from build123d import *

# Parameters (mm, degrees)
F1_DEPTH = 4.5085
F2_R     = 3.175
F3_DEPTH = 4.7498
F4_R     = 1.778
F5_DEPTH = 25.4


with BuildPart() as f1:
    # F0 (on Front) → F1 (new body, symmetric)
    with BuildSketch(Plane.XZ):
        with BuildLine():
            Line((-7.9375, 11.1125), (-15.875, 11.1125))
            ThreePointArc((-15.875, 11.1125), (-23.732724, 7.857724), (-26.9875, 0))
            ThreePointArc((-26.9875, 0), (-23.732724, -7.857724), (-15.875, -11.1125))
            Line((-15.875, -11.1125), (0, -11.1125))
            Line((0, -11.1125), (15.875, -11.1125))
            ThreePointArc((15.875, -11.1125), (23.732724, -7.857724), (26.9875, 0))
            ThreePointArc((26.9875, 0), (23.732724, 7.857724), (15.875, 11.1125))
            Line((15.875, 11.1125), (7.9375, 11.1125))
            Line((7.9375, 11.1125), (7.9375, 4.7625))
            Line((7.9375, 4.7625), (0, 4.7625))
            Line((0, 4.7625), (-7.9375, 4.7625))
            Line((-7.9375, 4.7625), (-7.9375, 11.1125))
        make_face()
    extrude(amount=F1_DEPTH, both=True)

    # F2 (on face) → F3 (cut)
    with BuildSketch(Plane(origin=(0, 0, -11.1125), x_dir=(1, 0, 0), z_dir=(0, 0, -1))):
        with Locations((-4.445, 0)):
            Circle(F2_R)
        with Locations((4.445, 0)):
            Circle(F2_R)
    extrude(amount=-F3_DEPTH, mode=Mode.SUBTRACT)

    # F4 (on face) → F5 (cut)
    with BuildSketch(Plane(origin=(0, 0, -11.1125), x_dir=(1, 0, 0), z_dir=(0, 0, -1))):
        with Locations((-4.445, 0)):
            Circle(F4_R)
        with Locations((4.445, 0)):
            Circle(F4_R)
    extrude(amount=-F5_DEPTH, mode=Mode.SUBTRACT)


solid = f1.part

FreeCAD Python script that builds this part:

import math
import FreeCAD as App
import Part
import Sketcher
from FreeCAD import Vector
Q = App.Units.Quantity

doc = App.newDocument("Part")
body = doc.addObject("PartDesign::Body", "Body")

sketch1 = body.newObject("Sketcher::SketchObject", "Sketch")
sketch1.AttachmentSupport = (doc.getObject("XZ_Plane"), [""])
sketch1.MapMode = "FlatFace"
sketch1.addGeometry(Part.LineSegment(Vector(-8, 11, 0), Vector(-16, 11, 0)), False)
sketch1.addGeometry(Part.ArcOfCircle(Part.Circle(Vector(-16, 0, 0), Vector(0, 0, 1), 11), math.radians(90), math.radians(180)), False)
sketch1.addGeometry(Part.ArcOfCircle(Part.Circle(Vector(-16, 0, 0), Vector(0, 0, 1), 11), math.radians(-180), math.radians(-90)), False)
sketch1.addGeometry(Part.LineSegment(Vector(-16, -11, 0), Vector(16, -11, 0)), False)
sketch1.addGeometry(Part.ArcOfCircle(Part.Circle(Vector(16, 0, 0), Vector(0, 0, 1), 11), math.radians(-90), math.radians(0)), False)
sketch1.addGeometry(Part.ArcOfCircle(Part.Circle(Vector(16, 0, 0), Vector(0, 0, 1), 11), math.radians(0), math.radians(90)), False)
sketch1.addGeometry(Part.LineSegment(Vector(16, 11, 0), Vector(8, 11, 0)), False)
sketch1.addGeometry(Part.LineSegment(Vector(8, 11, 0), Vector(8, 5, 0)), False)
sketch1.addGeometry(Part.LineSegment(Vector(8, 5, 0), Vector(-8, 5, 0)), False)
sketch1.addGeometry(Part.LineSegment(Vector(-8, 5, 0), Vector(-8, 11, 0)), False)
sketch1.addConstraint(Sketcher.Constraint("Tangent", 0, 2, 1, 1))
sketch1.addConstraint(Sketcher.Constraint("Tangent", 1, 2, 2, 1))
sketch1.addConstraint(Sketcher.Constraint("Tangent", 2, 2, 3, 1))
sketch1.addConstraint(Sketcher.Constraint("Tangent", 3, 2, 4, 1))
sketch1.addConstraint(Sketcher.Constraint("Tangent", 4, 2, 5, 1))
sketch1.addConstraint(Sketcher.Constraint("Tangent", 5, 2, 6, 1))
sketch1.addConstraint(Sketcher.Constraint("Coincident", 6, 2, 7, 1))
sketch1.addConstraint(Sketcher.Constraint("Coincident", 7, 2, 8, 1))
sketch1.addConstraint(Sketcher.Constraint("Coincident", 8, 2, 9, 1))
sketch1.addConstraint(Sketcher.Constraint("Coincident", 9, 2, 0, 1))
sketch1.addConstraint(Sketcher.Constraint("Horizontal", 0))
sketch1.addConstraint(Sketcher.Constraint("Horizontal", 3))
sketch1.addConstraint(Sketcher.Constraint("Horizontal", 6))
sketch1.addConstraint(Sketcher.Constraint("Vertical", 7))
sketch1.addConstraint(Sketcher.Constraint("Horizontal", 8))
sketch1.addConstraint(Sketcher.Constraint("Vertical", 9))
sketch1.addConstraint(Sketcher.Constraint("Equal", 1, 2))
sketch1.addConstraint(Sketcher.Constraint("Equal", 2, 4))
sketch1.addConstraint(Sketcher.Constraint("Equal", 4, 5))
sketch1.addConstraint(Sketcher.Constraint("Symmetric", 1, 3, 4, 3, -1, 1))
sketch1.addConstraint(Sketcher.Constraint("PointOnObject", 1, 2, -1))
sketch1.addConstraint(Sketcher.Constraint("PointOnObject", 4, 2, -1))
sketch1.addConstraint(Sketcher.Constraint("Equal", 0, 6))
sketch1.addConstraint(Sketcher.Constraint("Radius", 1, Q("0.4375 in")))
sketch1.addConstraint(Sketcher.Constraint("DistanceX", 3, 1, 3, 2, Q("1.25 in")))
sketch1.addConstraint(Sketcher.Constraint("DistanceY", 7, 2, 7, 1, Q("0.25 in")))
sketch1.addConstraint(Sketcher.Constraint("DistanceX", 0, 2, 0, 1, Q("0.3125 in")))
pad1 = body.newObject("PartDesign::Pad", "Pad")
pad1.Profile = sketch1
pad1.Length = Q("0.355 in")
pad1.Midplane = True

sketch2 = body.newObject("Sketcher::SketchObject", "Sketch001")
sketch2.AttachmentSupport = (doc.getObject("XY_Plane"), [""])
sketch2.MapMode = "FlatFace"
sketch2.AttachmentOffset = App.Placement(Vector(0, 0, -0.4375 * 25.4), App.Rotation())
sketch2.addGeometry(Part.Circle(Vector(-4.4, 0, 0), Vector(0, 0, 1), 3.2), False)
sketch2.addGeometry(Part.Circle(Vector(4.4, 0, 0), Vector(0, 0, 1), 3.2), False)
sketch2.addConstraint(Sketcher.Constraint("Equal", 0, 1))
sketch2.addConstraint(Sketcher.Constraint("Symmetric", 0, 3, 1, 3, -1, 1))
sketch2.addConstraint(Sketcher.Constraint("PointOnObject", 0, 3, -1))
sketch2.addConstraint(Sketcher.Constraint("Diameter", 0, Q("0.25 in")))
sketch2.addConstraint(Sketcher.Constraint("DistanceX", 0, 3, 1, 3, Q("0.35 in")))
pocket1 = body.newObject("PartDesign::Pocket", "Pocket")
pocket1.Profile = sketch2
pocket1.Length = Q("0.187 in")
pocket1.Reversed = True

sketch3 = body.newObject("Sketcher::SketchObject", "Sketch002")
sketch3.AttachmentSupport = (doc.getObject("XY_Plane"), [""])
sketch3.MapMode = "FlatFace"
sketch3.AttachmentOffset = App.Placement(Vector(0, 0, -0.4375 * 25.4), App.Rotation())
sketch3.addGeometry(Part.Circle(Vector(-4.4, 0, 0), Vector(0, 0, 1), 1.8), False)
sketch3.addGeometry(Part.Circle(Vector(4.4, 0, 0), Vector(0, 0, 1), 1.8), False)
sketch3.addConstraint(Sketcher.Constraint("Equal", 0, 1))
sketch3.addConstraint(Sketcher.Constraint("Symmetric", 0, 3, 1, 3, -1, 1))
sketch3.addConstraint(Sketcher.Constraint("PointOnObject", 0, 3, -1))
sketch3.addConstraint(Sketcher.Constraint("Diameter", 0, Q("0.14 in")))
sketch3.addConstraint(Sketcher.Constraint("DistanceX", 0, 3, 1, 3, Q("0.35 in")))
pocket2 = body.newObject("PartDesign::Pocket", "Pocket001")
pocket2.Profile = sketch3
pocket2.Length = Q("1 in")
pocket2.Reversed = True

doc.recompute()
